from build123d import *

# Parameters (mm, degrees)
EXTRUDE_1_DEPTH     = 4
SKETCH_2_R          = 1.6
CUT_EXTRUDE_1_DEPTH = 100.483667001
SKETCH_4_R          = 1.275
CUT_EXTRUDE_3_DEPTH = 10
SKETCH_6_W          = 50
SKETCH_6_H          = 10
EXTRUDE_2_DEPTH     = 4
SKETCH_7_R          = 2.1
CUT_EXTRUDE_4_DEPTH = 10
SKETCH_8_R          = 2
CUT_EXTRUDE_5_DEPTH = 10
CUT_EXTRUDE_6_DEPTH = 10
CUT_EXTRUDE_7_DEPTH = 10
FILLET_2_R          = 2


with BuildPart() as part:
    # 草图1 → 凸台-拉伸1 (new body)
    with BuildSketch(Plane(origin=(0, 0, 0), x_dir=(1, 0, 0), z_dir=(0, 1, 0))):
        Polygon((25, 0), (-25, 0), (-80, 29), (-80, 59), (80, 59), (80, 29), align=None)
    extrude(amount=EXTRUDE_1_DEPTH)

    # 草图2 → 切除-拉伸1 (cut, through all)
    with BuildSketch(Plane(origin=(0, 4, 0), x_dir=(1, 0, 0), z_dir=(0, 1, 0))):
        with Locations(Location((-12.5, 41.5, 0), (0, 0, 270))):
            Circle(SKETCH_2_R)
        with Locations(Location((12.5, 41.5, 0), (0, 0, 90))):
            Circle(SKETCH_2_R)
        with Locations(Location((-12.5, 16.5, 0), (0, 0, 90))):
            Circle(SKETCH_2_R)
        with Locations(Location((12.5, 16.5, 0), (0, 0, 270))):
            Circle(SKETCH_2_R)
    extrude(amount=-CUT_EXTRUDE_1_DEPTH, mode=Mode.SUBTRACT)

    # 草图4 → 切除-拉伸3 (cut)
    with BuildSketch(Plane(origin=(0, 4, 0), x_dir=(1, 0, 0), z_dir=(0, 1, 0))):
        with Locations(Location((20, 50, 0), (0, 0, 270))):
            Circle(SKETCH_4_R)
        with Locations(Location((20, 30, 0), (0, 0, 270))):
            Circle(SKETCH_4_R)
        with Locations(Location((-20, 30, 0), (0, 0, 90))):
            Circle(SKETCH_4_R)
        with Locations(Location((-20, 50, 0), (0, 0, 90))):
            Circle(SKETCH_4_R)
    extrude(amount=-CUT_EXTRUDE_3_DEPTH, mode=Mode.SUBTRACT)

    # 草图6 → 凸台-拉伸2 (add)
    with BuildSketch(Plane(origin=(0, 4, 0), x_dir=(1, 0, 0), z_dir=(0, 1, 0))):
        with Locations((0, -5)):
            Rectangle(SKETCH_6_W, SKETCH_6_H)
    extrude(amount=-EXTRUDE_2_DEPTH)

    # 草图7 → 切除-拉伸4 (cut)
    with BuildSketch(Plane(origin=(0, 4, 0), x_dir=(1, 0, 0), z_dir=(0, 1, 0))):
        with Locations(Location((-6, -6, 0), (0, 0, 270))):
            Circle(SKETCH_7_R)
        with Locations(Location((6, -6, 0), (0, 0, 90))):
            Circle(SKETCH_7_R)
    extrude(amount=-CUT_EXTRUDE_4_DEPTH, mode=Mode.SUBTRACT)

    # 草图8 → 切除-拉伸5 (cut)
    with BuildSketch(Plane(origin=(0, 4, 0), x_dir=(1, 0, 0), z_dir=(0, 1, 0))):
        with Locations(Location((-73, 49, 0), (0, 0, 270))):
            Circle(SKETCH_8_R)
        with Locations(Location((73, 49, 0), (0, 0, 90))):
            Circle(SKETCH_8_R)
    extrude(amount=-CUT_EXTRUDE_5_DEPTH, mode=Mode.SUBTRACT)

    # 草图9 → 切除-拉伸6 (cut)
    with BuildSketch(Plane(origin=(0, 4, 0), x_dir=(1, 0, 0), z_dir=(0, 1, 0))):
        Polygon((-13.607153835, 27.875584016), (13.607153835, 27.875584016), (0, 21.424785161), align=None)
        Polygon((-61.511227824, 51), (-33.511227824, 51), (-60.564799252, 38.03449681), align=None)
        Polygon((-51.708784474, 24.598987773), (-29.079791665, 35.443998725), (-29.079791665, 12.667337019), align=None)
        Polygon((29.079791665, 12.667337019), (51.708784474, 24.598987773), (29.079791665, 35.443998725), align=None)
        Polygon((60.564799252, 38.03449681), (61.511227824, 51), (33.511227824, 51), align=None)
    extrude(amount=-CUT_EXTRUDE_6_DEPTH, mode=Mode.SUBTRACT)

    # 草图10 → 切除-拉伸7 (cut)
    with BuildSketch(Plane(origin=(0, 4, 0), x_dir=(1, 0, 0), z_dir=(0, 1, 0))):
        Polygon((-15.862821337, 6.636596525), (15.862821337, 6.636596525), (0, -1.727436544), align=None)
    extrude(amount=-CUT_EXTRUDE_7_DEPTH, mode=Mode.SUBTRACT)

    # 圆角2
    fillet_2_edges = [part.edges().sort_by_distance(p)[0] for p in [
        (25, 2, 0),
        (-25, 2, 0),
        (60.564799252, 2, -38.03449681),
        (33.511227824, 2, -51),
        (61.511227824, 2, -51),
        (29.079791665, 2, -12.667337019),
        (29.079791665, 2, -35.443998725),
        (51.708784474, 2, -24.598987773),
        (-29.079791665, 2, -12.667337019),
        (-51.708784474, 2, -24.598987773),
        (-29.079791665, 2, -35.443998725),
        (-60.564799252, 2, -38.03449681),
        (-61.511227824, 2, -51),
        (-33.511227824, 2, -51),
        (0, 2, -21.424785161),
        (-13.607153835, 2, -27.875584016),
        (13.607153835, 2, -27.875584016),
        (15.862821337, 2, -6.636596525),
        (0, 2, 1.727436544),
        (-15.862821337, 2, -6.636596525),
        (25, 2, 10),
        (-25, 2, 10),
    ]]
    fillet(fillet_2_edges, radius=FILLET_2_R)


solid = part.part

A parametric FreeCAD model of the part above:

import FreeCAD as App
import Part
import Sketcher
from FreeCAD import Vector
Q = App.Units.Quantity


def edges_at(feature, points):
    """Names of the edges that pass closest to the given points."""
    edges = feature.Shape.Edges
    near = lambda p: min(range(len(edges)), key=lambda i: edges[i].distToShape(Part.Vertex(*p))[0])
    return sorted({f"Edge{near(p) + 1}" for p in points})


def add_polygon(sketch, points):
    """Adds a closed chain of lines whose ends are joined by coincident constraints."""
    first, n = sketch.GeometryCount, len(points)
    for a, b in zip(points, points[1:] + points[:1]):
        sketch.addGeometry(Part.LineSegment(App.Vector(*a, 0), App.Vector(*b, 0)), False)
    for i in range(n):
        sketch.addConstraint(Sketcher.Constraint("Coincident", first + i, 2, first + (i + 1) % n, 1))

doc = App.newDocument("Part")
params = doc.addObject("Spreadsheet::Sheet", "Params")
for row, (alias, value) in enumerate([
    ("sketch1_width", "50 mm"),
    ("sketch1_width2", "160 mm"),
    ("sketch1_height", "30 mm"),
    ("pad1_length", "4 mm"),
    ("sketch2_diameter", "3.2 mm"),
    ("sketch3_diameter", "2.55 mm"),
    ("pocket2_length", "10 mm"),
    ("sketch4_width", "50 mm"),
    ("sketch4_height", "10 mm"),
    ("pad2_length", "4 mm"),
    ("sketch5_diameter", "4.2 mm"),
    ("pocket3_length", "10 mm"),
    ("sketch6_diameter", "4 mm"),
    ("pocket4_length", "10 mm"),
    ("sketch7_width", "28 mm"),
    ("sketch7_length", "13 mm"),
    ("sketch7_length2", "30 mm"),
    ("pocket5_length", "10 mm"),
    ("pocket6_length", "10 mm"),
    ("fillet_radius", "2 mm"),
], start=1):
    params.set(f"A{row}", alias)
    params.set(f"B{row}", "=" + value)
    params.setAlias(f"B{row}", alias)

body = doc.addObject("PartDesign::Body", "Body")

# Sketch on XZ plane
sketch1 = body.newObject("Sketcher::SketchObject", "Sketch")
sketch1.AttachmentSupport = (doc.getObject("XZ_Plane"), [""])
sketch1.MapMode = "FlatFace"
add_polygon(sketch1, [(-25, 0), (25, 0), (80, -29), (80, -59), (-80, -59), (-80, -29)])  # lines 0-5
sketch1.addConstraint(Sketcher.Constraint("Horizontal", 0))
sketch1.addConstraint(Sketcher.Constraint("Vertical", 2))
sketch1.addConstraint(Sketcher.Constraint("Horizontal", 3))
sketch1.addConstraint(Sketcher.Constraint("Vertical", 4))
sketch1.addConstraint(Sketcher.Constraint("Symmetric", 0, 2, 5, 2, -1, 1))
sketch1.addConstraint(Sketcher.Constraint("Symmetric", 1, 2, 4, 2, -2))
sketch1.addConstraint(Sketcher.Constraint("DistanceX", 0, 1, 0, 2, Q("50 mm")))
sketch1.addConstraint(Sketcher.Constraint("DistanceX", 3, 2, 3, 1, Q("160 mm")))
sketch1.addConstraint(Sketcher.Constraint("DistanceY", 2, 2, 2, 1, Q("30 mm")))
sketch1.addConstraint(Sketcher.Constraint("DistanceY", 1, 2, -1, 1, Q("29 mm")))
sketch1.setExpression("Constraints[12]", "Params.sketch1_width")
sketch1.setExpression("Constraints[13]", "Params.sketch1_width2")
sketch1.setExpression("Constraints[14]", "Params.sketch1_height")
pad1 = body.newObject("PartDesign::Pad", "Pad")
pad1.Profile = sketch1
pad1.setExpression("Length", "Params.pad1_length")
pad1.Reversed = True

# Sketch on XZ plane
sketch2 = body.newObject("Sketcher::SketchObject", "Sketch001")
sketch2.AttachmentSupport = (doc.getObject("XZ_Plane"), [""])
sketch2.MapMode = "FlatFace"
sketch2.AttachmentOffset = App.Placement(Vector(0, 0, -4), App.Rotation())
sketch2.addGeometry(Part.Circle(Vector(-12.5, -41.5, 0), Vector(0, 0, 1), 1.6), False)
sketch2.addGeometry(Part.Circle(Vector(12.5, -41.5, 0), Vector(0, 0, 1), 1.6), False)
sketch2.addGeometry(Part.Circle(Vector(-12.5, -16.5, 0), Vector(0, 0, 1), 1.6), False)
sketch2.addGeometry(Part.Circle(Vector(12.5, -16.5, 0), Vector(0, 0, 1), 1.6), False)
sketch2.addConstraint(Sketcher.Constraint("Equal", 0, 1))
sketch2.addConstraint(Sketcher.Constraint("Equal", 1, 2))
sketch2.addConstraint(Sketcher.Constraint("Equal", 2, 3))
sketch2.addConstraint(Sketcher.Constraint("Symmetric", 0, 3, 1, 3, -2))
sketch2.addConstraint(Sketcher.Constraint("Symmetric", 2, 3, 3, 3, -2))
sketch2.addConstraint(Sketcher.Constraint("Vertical", 0, 3, 2, 3))
sketch2.addConstraint(Sketcher.Constraint("Diameter", 0, Q("3.2 mm")))
sketch2.addConstraint(Sketcher.Constraint("DistanceX", 0, 3, 1, 3, Q("25 mm")))
sketch2.addConstraint(Sketcher.Constraint("DistanceY", 0, 3, 2, 3, Q("25 mm")))
sketch2.addConstraint(Sketcher.Constraint("DistanceY", 0, 3, -1, 1, Q("41.5 mm")))
sketch2.setExpression("Constraints[6]", "Params.sketch2_diameter")
pocket1 = body.newObject("PartDesign::Pocket", "Pocket")
pocket1.Profile = sketch2
pocket1.Type = "ThroughAll"
pocket1.Reversed = True

# Sketch on XZ plane
sketch3 = body.newObject("Sketcher::SketchObject", "Sketch002")
sketch3.AttachmentSupport = (doc.getObject("XZ_Plane"), [""])
sketch3.MapMode = "FlatFace"
sketch3.AttachmentOffset = App.Placement(Vector(0, 0, -4), App.Rotation())
sketch3.addGeometry(Part.Circle(Vector(20, -50, 0), Vector(0, 0, 1), 1.3), False)
sketch3.addGeometry(Part.Circle(Vector(20, -30, 0), Vector(0, 0, 1), 1.3), False)
sketch3.addGeometry(Part.Circle(Vector(-20, -30, 0), Vector(0, 0, 1), 1.3), False)
sketch3.addGeometry(Part.Circle(Vector(-20, -50, 0), Vector(0, 0, 1), 1.3), False)
sketch3.addConstraint(Sketcher.Constraint("Equal", 0, 1))
sketch3.addConstraint(Sketcher.Constraint("Equal", 1, 2))
sketch3.addConstraint(Sketcher.Constraint("Equal", 2, 3))
sketch3.addConstraint(Sketcher.Constraint("Symmetric", 1, 3, 2, 3, -2))
sketch3.addConstraint(Sketcher.Constraint("Symmetric", 0, 3, 3, 3, -2))
sketch3.addConstraint(Sketcher.Constraint("Vertical", 0, 3, 1, 3))
sketch3.addConstraint(Sketcher.Constraint("Diameter", 0, Q("2.55 mm")))
sketch3.addConstraint(Sketcher.Constraint("DistanceX", -1, 1, 0, 3, Q("20 mm")))
sketch3.addConstraint(Sketcher.Constraint("DistanceY", 0, 3, -1, 1, Q("50 mm")))
sketch3.addConstraint(Sketcher.Constraint("DistanceY", 1, 3, -1, 1, Q("30 mm")))
sketch3.setExpression("Constraints[6]", "Params.sketch3_diameter")
pocket2 = body.newObject("PartDesign::Pocket", "Pocket001")
pocket2.Profile = sketch3
pocket2.setExpression("Length", "Params.pocket2_length")
pocket2.Reversed = True

# Sketch on XZ plane
sketch4 = body.newObject("Sketcher::SketchObject", "Sketch003")
sketch4.AttachmentSupport = (doc.getObject("XZ_Plane"), [""])
sketch4.MapMode = "FlatFace"
sketch4.AttachmentOffset = App.Placement(Vector(0, 0, -4), App.Rotation())
add_polygon(sketch4, [(-25, 0), (-25, 10), (25, 10), (25, 0)])  # lines 0-3
sketch4.addConstraint(Sketcher.Constraint("Vertical", 0))
sketch4.addConstraint(Sketcher.Constraint("Horizontal", 1))
sketch4.addConstraint(Sketcher.Constraint("Vertical", 2))
sketch4.addConstraint(Sketcher.Constraint("Horizontal", 3))
sketch4.addConstraint(Sketcher.Constraint("Symmetric", 2, 2, 3, 2, -1, 1))
sketch4.addConstraint(Sketcher.Constraint("DistanceX", 1, 1, 1, 2, Q("50 mm")))
sketch4.addConstraint(Sketcher.Constraint("DistanceY", 0, 1, 0, 2, Q("10 mm")))
sketch4.setExpression("Constraints[9]", "Params.sketch4_width")
sketch4.setExpression("Constraints[10]", "Params.sketch4_height")
pad2 = body.newObject("PartDesign::Pad", "Pad001")
pad2.Profile = sketch4
pad2.setExpression("Length", "Params.pad2_length")

# Sketch on XZ plane
sketch5 = body.newObject("Sketcher::SketchObject", "Sketch004")
sketch5.AttachmentSupport = (doc.getObject("XZ_Plane"), [""])
sketch5.MapMode = "FlatFace"
sketch5.AttachmentOffset = App.Placement(Vector(0, 0, -4), App.Rotation())
sketch5.addGeometry(Part.Circle(Vector(-6, 6, 0), Vector(0, 0, 1), 2.1), False)
sketch5.addGeometry(Part.Circle(Vector(6, 6, 0), Vector(0, 0, 1), 2.1), False)
sketch5.addConstraint(Sketcher.Constraint("Equal", 0, 1))
sketch5.addConstraint(Sketcher.Constraint("Symmetric", 0, 3, 1, 3, -2))
sketch5.addConstraint(Sketcher.Constraint("Diameter", 0, Q("4.2 mm")))
sketch5.addConstraint(Sketcher.Constraint("DistanceX", 0, 3, -1, 1, Q("6 mm")))
sketch5.addConstraint(Sketcher.Constraint("DistanceY", -1, 1, 0, 3, Q("6 mm")))
sketch5.setExpression("Constraints[2]", "Params.sketch5_diameter")
pocket3 = body.newObject("PartDesign::Pocket", "Pocket002")
pocket3.Profile = sketch5
pocket3.setExpression("Length", "Params.pocket3_length")
pocket3.Reversed = True

# Sketch on XZ plane
sketch6 = body.newObject("Sketcher::SketchObject", "Sketch005")
sketch6.AttachmentSupport = (doc.getObject("XZ_Plane"), [""])
sketch6.MapMode = "FlatFace"
sketch6.AttachmentOffset = App.Placement(Vector(0, 0, -4), App.Rotation())
sketch6.addGeometry(Part.Circle(Vector(-73, -49, 0), Vector(0, 0, 1), 2), False)
sketch6.addGeometry(Part.Circle(Vector(73, -49, 0), Vector(0, 0, 1), 2), False)
sketch6.addConstraint(Sketcher.Constraint("Equal", 0, 1))
sketch6.addConstraint(Sketcher.Constraint("Symmetric", 0, 3, 1, 3, -2))
sketch6.addConstraint(Sketcher.Constraint("Diameter", 0, Q("4 mm")))
sketch6.addConstraint(Sketcher.Constraint("DistanceX", 0, 3, -1, 1, Q("73 mm")))
sketch6.addConstraint(Sketcher.Constraint("DistanceY", 0, 3, -1, 1, Q("49 mm")))
sketch6.setExpression("Constraints[2]", "Params.sketch6_diameter")
pocket4 = body.newObject("PartDesign::Pocket", "Pocket003")
pocket4.Profile = sketch6
pocket4.setExpression("Length", "Params.pocket4_length")
pocket4.Reversed = True

# Sketch on XZ plane
sketch7 = body.newObject("Sketcher::SketchObject", "Sketch006")
sketch7.AttachmentSupport = (doc.getObject("XZ_Plane"), [""])
sketch7.MapMode = "FlatFace"
sketch7.AttachmentOffset = App.Placement(Vector(0, 0, -4), App.Rotation())
add_polygon(sketch7, [(14, -28), (-14, -28), (0, -21)])  # lines 0-2
add_polygon(sketch7, [(-34, -51), (-62, -51), (-61, -38)])  # lines 3-5
add_polygon(sketch7, [(-29, -35), (-52, -25), (-29, -13)])  # lines 6-8
add_polygon(sketch7, [(29, -13), (52, -25), (29, -35)])  # lines 9-11
add_polygon(sketch7, [(61, -38), (62, -51), (34, -51)])  # lines 12-14
sketch7.addConstraint(Sketcher.Constraint("Horizontal", 0))
sketch7.addConstraint(Sketcher.Constraint("Horizontal", 3))
sketch7.addConstraint(Sketcher.Constraint("Vertical", 8))
sketch7.addConstraint(Sketcher.Constraint("Vertical", 11))
sketch7.addConstraint(Sketcher.Constraint("Horizontal", 13))
sketch7.addConstraint(Sketcher.Constraint("Symmetric", 6, 2, 9, 2, -2))
sketch7.addConstraint(Sketcher.Constraint("Symmetric", 8, 2, 10, 2, -2))
sketch7.addConstraint(Sketcher.Constraint("Symmetric", 3, 2, 12, 2, -2))
sketch7.addConstraint(Sketcher.Constraint("Symmetric", 4, 2, 14, 2, -2))
sketch7.addConstraint(Sketcher.Constraint("PointOnObject", 1, 2, -2))
sketch7.addConstraint(Sketcher.Constraint("Parallel", 5, 6))
sketch7.addConstraint(Sketcher.Constraint("Parallel", 10, 14))
sketch7.addConstraint(Sketcher.Constraint("Horizontal", 7, 2, 11, 2))
sketch7.addConstraint(Sketcher.Constraint("Equal", 1, 2))
sketch7.addConstraint(Sketcher.Constraint("DistanceX", 3, 2, 3, 1, Q("28 mm")))
sketch7.addConstraint(Sketcher.Constraint("Distance", 4, Q("13 mm")))
sketch7.addConstraint(Sketcher.Constraint("Distance", 5, Q("30 mm")))
sketch7.addConstraint(Sketcher.Constraint("DistanceY", 3, 2, -1, 1, Q("51 mm")))
sketch7.addConstraint(Sketcher.Constraint("DistanceY", 8, 2, -1, 1, Q("35.443999 mm")))
sketch7.addConstraint(Sketcher.Constraint("Distance", 1, Q("15.058799 mm")))
sketch7.addConstraint(Sketcher.Constraint("DistanceY", 8, 2, 8, 1, Q("22.776662 mm")))
sketch7.addConstraint(Sketcher.Constraint("DistanceX", 4, 2, -1, 1, Q("60.564799 mm")))
sketch7.addConstraint(Sketcher.Constraint("DistanceY", 0, 2, 1, 2, Q("6.450799 mm")))
sketch7.addConstraint(Sketcher.Constraint("Distance", 7, Q("25.581939 mm")))
sketch7.addConstraint(Sketcher.Constraint("DistanceX", 7, 2, -1, 1, Q("29.079792 mm")))
sketch7.addConstraint(Sketcher.Constraint("DistanceY", 4, 2, 1, 2, Q("16.609712 mm")))
sketch7.setExpression("Constraints[29]", "Params.sketch7_width")
sketch7.setExpression("Constraints[30]", "Params.sketch7_length")
sketch7.setExpression("Constraints[31]", "Params.sketch7_length2")
pocket5 = body.newObject("PartDesign::Pocket", "Pocket004")
pocket5.Profile = sketch7
pocket5.setExpression("Length", "Params.pocket5_length")
pocket5.Reversed = True

# Sketch on XZ plane
sketch8 = body.newObject("Sketcher::SketchObject", "Sketch007")
sketch8.AttachmentSupport = (doc.getObject("XZ_Plane"), [""])
sketch8.MapMode = "FlatFace"
sketch8.AttachmentOffset = App.Placement(Vector(0, 0, -4), App.Rotation())
add_polygon(sketch8, [(16, -7), (-16, -7), (0, 2)])  # lines 0-2
sketch8.addConstraint(Sketcher.Constraint("Horizontal", 0))
sketch8.addConstraint(Sketcher.Constraint("PointOnObject", 1, 2, -2))
sketch8.addConstraint(Sketcher.Constraint("Equal", 1, 2))
sketch8.addConstraint(Sketcher.Constraint("DistanceX", 0, 2, 0, 1, Q("31.725643 mm")))
sketch8.addConstraint(Sketcher.Constraint("Distance", 1, Q("17.932823 mm")))
sketch8.addConstraint(Sketcher.Constraint("DistanceY", 0, 2, -1, 1, Q("6.636597 mm")))
pocket6 = body.newObject("PartDesign::Pocket", "Pocket005")
pocket6.Profile = sketch8
pocket6.setExpression("Length", "Params.pocket6_length")
pocket6.Reversed = True
doc.recompute()

fillet = body.newObject("PartDesign::Fillet", "Fillet")
fillet.Base = (pocket6, edges_at(pocket6, [
    (25, 2, 0),
    (-25, 2, 0),
    (60.565, 2, -38.034),
    (33.511, 2, -51),
    (61.511, 2, -51),
    (29.08, 2, -12.667),
    (29.08, 2, -35.444),
    (51.709, 2, -24.599),
    (-29.08, 2, -12.667),
    (-51.709, 2, -24.599),
    (-29.08, 2, -35.444),
    (-60.565, 2, -38.034),
    (-61.511, 2, -51),
    (-33.511, 2, -51),
    (0, 2, -21.425),
    (-13.607, 2, -27.876),
    (13.607, 2, -27.876),
    (15.863, 2, -6.637),
    (0, 2, 1.727),
    (-15.863, 2, -6.637),
    (25, 2, 10),
    (-25, 2, 10),
]))
fillet.setExpression("Radius", "Params.fillet_radius")

doc.recompute()
